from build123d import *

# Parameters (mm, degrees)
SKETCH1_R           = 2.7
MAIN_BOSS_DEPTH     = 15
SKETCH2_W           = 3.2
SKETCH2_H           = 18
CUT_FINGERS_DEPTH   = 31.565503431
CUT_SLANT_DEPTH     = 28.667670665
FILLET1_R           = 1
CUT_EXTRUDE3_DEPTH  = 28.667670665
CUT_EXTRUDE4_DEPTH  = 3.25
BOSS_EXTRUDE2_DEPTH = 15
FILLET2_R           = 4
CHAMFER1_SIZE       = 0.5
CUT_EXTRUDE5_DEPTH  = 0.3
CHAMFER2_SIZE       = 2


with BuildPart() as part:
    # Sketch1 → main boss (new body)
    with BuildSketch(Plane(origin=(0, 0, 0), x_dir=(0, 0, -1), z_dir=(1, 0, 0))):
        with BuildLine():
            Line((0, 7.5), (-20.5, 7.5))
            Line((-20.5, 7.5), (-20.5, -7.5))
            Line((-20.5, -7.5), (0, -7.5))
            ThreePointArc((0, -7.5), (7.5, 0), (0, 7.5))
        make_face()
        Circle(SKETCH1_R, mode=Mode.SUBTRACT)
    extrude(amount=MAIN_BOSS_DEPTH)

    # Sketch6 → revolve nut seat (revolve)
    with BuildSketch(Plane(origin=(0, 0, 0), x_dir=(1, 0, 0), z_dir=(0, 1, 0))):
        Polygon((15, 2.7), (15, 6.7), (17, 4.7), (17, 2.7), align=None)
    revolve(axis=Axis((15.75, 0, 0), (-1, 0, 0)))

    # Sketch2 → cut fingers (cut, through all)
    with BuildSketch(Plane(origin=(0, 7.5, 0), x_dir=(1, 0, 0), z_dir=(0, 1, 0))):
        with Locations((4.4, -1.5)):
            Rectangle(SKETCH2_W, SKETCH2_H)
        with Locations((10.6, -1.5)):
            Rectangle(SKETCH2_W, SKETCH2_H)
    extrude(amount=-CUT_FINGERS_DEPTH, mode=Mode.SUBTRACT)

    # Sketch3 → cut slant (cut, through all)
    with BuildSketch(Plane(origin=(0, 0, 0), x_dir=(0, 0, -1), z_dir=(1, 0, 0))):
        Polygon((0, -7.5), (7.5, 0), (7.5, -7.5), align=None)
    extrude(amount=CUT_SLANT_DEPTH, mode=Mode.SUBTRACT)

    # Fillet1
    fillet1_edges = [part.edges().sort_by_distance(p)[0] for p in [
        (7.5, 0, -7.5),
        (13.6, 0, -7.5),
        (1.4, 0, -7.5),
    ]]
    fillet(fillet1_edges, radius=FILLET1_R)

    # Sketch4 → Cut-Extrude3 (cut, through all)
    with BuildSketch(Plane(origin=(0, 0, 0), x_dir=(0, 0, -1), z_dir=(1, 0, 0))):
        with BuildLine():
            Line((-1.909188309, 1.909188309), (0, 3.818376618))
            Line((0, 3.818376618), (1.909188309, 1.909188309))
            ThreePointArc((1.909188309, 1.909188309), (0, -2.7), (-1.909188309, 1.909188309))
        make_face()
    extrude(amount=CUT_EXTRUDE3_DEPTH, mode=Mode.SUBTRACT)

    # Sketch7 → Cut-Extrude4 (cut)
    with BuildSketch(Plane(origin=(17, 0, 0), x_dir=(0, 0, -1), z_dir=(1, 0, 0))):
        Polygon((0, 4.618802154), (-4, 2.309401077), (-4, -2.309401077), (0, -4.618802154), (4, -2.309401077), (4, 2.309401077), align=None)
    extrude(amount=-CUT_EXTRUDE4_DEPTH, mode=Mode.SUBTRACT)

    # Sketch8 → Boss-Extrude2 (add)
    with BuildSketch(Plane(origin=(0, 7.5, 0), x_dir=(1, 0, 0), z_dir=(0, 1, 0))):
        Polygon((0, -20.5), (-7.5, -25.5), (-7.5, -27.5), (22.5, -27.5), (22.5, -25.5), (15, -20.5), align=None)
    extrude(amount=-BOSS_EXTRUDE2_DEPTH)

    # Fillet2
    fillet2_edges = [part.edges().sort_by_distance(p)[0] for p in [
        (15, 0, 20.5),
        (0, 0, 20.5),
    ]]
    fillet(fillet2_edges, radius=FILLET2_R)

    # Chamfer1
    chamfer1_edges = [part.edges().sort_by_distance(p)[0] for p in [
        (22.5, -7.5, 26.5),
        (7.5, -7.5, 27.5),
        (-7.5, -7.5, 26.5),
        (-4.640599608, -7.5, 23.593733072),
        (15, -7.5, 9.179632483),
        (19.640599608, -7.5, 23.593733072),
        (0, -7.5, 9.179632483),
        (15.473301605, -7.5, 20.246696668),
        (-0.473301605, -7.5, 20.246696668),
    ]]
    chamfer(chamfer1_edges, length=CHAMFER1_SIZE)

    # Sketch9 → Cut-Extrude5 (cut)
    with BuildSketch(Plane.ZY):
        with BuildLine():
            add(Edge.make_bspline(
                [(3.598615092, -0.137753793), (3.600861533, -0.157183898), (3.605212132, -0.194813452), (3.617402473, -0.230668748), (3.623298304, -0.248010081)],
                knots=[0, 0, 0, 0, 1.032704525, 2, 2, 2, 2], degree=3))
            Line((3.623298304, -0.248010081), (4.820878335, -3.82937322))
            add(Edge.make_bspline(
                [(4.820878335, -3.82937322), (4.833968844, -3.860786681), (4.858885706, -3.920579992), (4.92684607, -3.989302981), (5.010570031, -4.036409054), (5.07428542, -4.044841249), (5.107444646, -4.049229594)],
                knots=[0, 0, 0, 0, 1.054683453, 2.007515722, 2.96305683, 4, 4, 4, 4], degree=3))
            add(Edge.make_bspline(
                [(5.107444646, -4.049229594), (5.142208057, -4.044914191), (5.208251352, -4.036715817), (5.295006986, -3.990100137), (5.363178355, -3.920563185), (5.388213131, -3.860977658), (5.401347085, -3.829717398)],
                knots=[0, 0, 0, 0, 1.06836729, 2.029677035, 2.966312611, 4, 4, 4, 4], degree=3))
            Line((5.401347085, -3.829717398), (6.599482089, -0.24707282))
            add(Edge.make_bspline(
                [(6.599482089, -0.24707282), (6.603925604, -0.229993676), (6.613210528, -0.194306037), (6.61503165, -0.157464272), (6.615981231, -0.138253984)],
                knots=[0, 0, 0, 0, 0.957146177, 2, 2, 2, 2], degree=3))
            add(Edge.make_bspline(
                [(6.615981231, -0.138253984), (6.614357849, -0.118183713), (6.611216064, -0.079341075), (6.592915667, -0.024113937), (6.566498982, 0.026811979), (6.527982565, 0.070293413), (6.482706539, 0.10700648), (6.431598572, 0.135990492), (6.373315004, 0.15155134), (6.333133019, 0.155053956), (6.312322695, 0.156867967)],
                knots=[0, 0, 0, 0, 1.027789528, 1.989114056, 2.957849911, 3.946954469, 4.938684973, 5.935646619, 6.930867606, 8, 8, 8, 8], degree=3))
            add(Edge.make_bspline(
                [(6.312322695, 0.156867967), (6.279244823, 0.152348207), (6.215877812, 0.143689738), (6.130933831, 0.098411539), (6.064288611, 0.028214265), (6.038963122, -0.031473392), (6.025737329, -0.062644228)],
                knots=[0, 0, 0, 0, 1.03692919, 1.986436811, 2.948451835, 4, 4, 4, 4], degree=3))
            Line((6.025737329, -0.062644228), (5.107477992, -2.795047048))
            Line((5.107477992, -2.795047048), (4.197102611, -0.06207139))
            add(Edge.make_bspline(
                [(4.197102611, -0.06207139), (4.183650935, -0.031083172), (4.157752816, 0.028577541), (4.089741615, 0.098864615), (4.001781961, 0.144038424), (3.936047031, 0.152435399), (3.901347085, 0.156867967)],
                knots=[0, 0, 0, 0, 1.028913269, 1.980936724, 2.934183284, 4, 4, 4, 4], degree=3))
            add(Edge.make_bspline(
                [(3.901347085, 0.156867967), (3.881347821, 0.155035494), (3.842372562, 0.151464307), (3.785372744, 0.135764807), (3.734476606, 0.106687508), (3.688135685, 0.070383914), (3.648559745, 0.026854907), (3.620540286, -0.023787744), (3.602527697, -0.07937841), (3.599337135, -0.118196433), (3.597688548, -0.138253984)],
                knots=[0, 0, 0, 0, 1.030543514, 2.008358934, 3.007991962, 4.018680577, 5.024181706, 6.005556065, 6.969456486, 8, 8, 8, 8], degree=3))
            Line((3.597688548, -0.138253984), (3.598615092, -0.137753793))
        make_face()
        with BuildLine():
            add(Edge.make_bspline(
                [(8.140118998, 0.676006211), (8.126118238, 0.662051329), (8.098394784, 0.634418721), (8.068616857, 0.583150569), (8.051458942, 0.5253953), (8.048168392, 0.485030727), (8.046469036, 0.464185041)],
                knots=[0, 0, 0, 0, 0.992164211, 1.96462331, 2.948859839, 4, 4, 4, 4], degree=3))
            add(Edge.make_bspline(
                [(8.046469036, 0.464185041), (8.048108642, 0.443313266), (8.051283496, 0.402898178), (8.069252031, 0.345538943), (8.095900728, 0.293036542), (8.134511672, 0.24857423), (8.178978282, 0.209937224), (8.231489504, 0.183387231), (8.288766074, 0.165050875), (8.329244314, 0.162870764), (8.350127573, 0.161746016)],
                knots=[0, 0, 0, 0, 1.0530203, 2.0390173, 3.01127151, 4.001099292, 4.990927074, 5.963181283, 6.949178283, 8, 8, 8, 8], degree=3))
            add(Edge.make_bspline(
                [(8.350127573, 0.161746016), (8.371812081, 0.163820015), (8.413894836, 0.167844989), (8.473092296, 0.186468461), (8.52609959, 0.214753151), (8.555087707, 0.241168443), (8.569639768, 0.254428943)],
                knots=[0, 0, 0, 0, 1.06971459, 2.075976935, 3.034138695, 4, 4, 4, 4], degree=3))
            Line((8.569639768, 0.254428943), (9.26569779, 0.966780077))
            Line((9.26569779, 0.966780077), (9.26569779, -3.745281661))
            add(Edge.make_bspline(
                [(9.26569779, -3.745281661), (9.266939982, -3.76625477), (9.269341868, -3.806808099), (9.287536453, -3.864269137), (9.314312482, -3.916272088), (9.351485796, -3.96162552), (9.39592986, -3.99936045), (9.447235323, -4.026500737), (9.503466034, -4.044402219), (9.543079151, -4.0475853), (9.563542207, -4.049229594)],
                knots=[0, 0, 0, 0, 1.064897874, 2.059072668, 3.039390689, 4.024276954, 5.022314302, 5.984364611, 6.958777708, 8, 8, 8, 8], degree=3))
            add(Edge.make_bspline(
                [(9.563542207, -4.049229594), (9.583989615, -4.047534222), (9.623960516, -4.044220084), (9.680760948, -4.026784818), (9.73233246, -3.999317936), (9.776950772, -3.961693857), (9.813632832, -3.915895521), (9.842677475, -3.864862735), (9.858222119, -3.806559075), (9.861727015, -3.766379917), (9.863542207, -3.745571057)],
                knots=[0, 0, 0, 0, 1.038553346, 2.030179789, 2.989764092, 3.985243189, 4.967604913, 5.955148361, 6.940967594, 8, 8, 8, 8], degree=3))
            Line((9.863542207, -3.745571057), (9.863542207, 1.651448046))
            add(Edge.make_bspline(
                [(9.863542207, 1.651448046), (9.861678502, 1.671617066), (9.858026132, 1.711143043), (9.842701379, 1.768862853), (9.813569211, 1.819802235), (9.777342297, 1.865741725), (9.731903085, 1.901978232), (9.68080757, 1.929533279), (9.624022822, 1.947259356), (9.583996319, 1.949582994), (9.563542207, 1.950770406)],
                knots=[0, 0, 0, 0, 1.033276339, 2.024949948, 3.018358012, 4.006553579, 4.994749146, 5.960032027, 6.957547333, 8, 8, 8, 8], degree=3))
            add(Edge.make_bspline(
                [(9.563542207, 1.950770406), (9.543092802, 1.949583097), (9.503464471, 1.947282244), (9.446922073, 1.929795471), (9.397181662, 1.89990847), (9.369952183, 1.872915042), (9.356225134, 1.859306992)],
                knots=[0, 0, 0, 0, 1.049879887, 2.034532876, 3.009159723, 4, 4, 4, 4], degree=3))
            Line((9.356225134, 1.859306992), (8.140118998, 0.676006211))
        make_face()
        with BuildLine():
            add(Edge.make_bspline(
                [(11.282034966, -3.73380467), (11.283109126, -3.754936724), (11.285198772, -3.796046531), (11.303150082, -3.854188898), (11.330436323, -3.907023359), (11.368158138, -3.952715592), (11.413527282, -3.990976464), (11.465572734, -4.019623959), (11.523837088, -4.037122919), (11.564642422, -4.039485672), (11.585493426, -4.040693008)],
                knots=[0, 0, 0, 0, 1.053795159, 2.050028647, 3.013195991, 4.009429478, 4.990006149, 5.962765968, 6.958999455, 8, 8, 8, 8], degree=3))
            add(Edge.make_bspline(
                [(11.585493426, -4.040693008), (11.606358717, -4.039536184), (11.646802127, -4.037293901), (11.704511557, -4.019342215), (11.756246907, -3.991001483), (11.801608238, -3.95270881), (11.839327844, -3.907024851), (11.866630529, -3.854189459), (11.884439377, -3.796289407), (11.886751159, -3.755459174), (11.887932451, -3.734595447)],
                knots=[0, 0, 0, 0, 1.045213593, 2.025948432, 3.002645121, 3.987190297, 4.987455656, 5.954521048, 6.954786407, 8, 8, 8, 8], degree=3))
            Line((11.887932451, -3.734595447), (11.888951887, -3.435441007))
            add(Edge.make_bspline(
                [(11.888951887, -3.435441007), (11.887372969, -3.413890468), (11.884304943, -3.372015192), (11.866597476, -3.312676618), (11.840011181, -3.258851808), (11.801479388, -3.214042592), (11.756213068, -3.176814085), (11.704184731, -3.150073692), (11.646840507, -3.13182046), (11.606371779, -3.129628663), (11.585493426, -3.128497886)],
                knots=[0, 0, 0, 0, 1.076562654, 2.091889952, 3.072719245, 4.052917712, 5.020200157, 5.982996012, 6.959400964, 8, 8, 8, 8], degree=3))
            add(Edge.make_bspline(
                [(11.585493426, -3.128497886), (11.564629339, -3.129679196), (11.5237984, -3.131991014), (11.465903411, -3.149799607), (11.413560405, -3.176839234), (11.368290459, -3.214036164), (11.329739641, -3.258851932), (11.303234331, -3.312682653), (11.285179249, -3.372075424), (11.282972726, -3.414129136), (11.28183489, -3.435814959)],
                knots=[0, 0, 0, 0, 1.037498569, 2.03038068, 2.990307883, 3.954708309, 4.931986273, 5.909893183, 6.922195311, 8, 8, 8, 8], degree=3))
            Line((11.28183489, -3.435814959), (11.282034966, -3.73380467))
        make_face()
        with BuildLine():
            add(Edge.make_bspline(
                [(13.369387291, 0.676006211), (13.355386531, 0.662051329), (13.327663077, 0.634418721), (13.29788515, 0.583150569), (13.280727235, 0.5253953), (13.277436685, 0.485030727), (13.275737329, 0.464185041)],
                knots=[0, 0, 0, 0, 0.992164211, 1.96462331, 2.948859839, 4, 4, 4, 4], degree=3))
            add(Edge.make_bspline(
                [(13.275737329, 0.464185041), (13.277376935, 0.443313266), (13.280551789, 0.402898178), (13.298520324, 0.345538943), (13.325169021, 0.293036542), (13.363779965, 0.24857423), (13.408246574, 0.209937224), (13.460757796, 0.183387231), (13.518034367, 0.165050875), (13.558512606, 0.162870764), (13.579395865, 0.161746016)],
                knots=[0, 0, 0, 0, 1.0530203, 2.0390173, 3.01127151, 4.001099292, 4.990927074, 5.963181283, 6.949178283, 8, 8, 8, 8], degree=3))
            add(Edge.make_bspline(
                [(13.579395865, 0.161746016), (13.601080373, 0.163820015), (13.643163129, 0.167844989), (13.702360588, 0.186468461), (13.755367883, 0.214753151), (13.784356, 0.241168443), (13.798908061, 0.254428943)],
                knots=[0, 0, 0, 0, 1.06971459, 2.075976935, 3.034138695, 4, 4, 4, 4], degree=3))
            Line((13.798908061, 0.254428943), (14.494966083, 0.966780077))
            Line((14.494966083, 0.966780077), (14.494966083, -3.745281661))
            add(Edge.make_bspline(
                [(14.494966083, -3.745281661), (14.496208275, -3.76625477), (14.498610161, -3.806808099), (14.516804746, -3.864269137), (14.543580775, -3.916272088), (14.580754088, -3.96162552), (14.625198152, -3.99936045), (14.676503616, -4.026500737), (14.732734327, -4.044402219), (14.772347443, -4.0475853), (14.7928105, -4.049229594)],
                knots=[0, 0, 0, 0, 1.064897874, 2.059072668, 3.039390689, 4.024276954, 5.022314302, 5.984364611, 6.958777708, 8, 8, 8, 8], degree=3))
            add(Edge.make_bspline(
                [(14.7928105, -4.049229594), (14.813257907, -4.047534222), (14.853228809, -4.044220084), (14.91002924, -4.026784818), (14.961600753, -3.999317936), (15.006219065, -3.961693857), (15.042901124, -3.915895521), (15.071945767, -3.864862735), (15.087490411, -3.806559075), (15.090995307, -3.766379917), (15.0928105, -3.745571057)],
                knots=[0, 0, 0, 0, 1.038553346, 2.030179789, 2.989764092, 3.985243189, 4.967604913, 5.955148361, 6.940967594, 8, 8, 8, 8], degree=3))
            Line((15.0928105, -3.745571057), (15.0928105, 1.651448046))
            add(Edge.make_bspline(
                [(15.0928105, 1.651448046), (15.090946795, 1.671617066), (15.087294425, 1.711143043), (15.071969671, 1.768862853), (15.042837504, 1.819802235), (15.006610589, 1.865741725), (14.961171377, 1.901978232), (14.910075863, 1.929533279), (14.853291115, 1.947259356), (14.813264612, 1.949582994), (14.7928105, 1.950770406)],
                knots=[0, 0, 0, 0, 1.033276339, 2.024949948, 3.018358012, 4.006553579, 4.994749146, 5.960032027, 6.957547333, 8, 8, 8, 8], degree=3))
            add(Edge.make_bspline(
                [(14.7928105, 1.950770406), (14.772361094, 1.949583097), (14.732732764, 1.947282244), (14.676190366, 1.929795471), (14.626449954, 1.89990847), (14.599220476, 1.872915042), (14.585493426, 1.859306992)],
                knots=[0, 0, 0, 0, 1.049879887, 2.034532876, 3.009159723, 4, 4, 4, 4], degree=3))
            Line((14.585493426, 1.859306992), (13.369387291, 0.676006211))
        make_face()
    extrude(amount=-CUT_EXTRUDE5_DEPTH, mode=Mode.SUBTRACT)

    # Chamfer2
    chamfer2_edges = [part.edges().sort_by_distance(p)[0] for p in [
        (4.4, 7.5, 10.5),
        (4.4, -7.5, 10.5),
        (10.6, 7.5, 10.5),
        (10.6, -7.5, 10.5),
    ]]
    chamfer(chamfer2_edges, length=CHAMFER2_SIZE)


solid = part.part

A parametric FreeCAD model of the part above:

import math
import FreeCAD as App
import Part
import Sketcher
from FreeCAD import Vector
Q = App.Units.Quantity


def edges_at(feature, points):
    """Names of the edges that pass closest to the given points."""
    edges = feature.Shape.Edges
    near = lambda p: min(range(len(edges)), key=lambda i: edges[i].distToShape(Part.Vertex(*p))[0])
    return sorted({f"Edge{near(p) + 1}" for p in points})


def add_polygon(sketch, points):
    """Adds a closed chain of lines whose ends are joined by coincident constraints."""
    first, n = sketch.GeometryCount, len(points)
    for a, b in zip(points, points[1:] + points[:1]):
        sketch.addGeometry(Part.LineSegment(App.Vector(*a, 0), App.Vector(*b, 0)), False)
    for i in range(n):
        sketch.addConstraint(Sketcher.Constraint("Coincident", first + i, 2, first + (i + 1) % n, 1))

doc = App.newDocument("Part")
body = doc.addObject("PartDesign::Body", "Body")

sketch1 = doc.addObject("Sketcher::SketchObject", "Sketch")
body.addObject(sketch1)
sketch1.AttachmentSupport = (doc.YZ_Plane, [""])
sketch1.MapMode = "FlatFace"
sketch1.addGeometry([
    Part.LineSegment(Vector(7.5, 0, 0), Vector(7.5, 20.5, 0)),
    Part.LineSegment(Vector(7.5, 20.5, 0), Vector(-7.5, 20.5, 0)),
    Part.LineSegment(Vector(-7.5, 20.5, 0), Vector(-7.5, 0, 0)),
    Part.ArcOfCircle(Part.Circle(Vector(0, 0, 0), Vector(0, 0, 1), 7.5), math.radians(180), math.radians(360)),
    Part.Circle(Vector(0, 0, 0), Vector(0, 0, 1), 2.7),
], False)
sketch1.addConstraint([
    Sketcher.Constraint("Coincident", 0, 2, 1, 1),
    Sketcher.Constraint("Coincident", 1, 2, 2, 1),
    Sketcher.Constraint("Tangent", 2, 2, 3, 1),
    Sketcher.Constraint("Tangent", 3, 2, 0, 1),
    Sketcher.Constraint("Vertical", 0),
    Sketcher.Constraint("Horizontal", 1),
    Sketcher.Constraint("Vertical", 2),
    Sketcher.Constraint("Coincident", 3, 3, -1, 1),
    Sketcher.Constraint("Coincident", 4, 3, -1, 1),
    Sketcher.Constraint("Diameter", 4, Q("5.4 mm")),
    Sketcher.Constraint("Radius", 3, Q("7.5 mm")),
    Sketcher.Constraint("DistanceY", 0, 1, 0, 2, Q("20.5 mm")),
])
pad1 = doc.addObject("PartDesign::Pad", "Pad")
body.addObject(pad1)
pad1.Profile = sketch1
pad1.Length = 15

sketch2 = doc.addObject("Sketcher::SketchObject", "Sketch001")
body.addObject(sketch2)
sketch2.AttachmentSupport = (doc.XZ_Plane, [""])
sketch2.MapMode = "FlatFace"
add_polygon(sketch2, [(15, -6.7), (15, -2.7), (17, -2.7), (17, -4.7)])
sketch2.addConstraint([
    Sketcher.Constraint("Vertical", 0),
    Sketcher.Constraint("Horizontal", 1),
    Sketcher.Constraint("Vertical", 2),
    Sketcher.Constraint("Equal", 1, 2),
    Sketcher.Constraint("DistanceX", 1, 1, 1, 2, Q("2 mm")),
    Sketcher.Constraint("DistanceY", 0, 1, 0, 2, Q("4 mm")),
    Sketcher.Constraint("DistanceX", -1, 1, 0, 2, Q("15 mm")),
    Sketcher.Constraint("DistanceY", 0, 2, -1, 1, Q("2.7 mm")),
])
revolution = doc.addObject("PartDesign::Revolution", "Revolution")
body.addObject(revolution)
revolution.Profile = sketch2
revolution.ReferenceAxis = (sketch2, ["H_Axis"])
revolution.Angle = 360

sketch3 = doc.addObject("Sketcher::SketchObject", "Sketch002")
body.addObject(sketch3)
sketch3.AttachmentSupport = (doc.XZ_Plane, [""])
sketch3.MapMode = "FlatFace"
sketch3.AttachmentOffset = App.Placement(Vector(0, 0, -7.5), App.Rotation())
add_polygon(sketch3, [(2.8, -7.5), (2.8, 10.5), (6, 10.5), (6, -7.5)])
add_polygon(sketch3, [(9, -7.5), (9, 10.5), (12.2, 10.5), (12.2, -7.5)])
sketch3.addConstraint([
    Sketcher.Constraint("Vertical", 0),
    Sketcher.Constraint("Horizontal", 1),
    Sketcher.Constraint("Vertical", 2),
    Sketcher.Constraint("Horizontal", 3),
    Sketcher.Constraint("Vertical", 4),
    Sketcher.Constraint("Horizontal", 5),
    Sketcher.Constraint("Vertical", 6),
    Sketcher.Constraint("Horizontal", 7),
    Sketcher.Constraint("Horizontal", 1, 2, 4, 2),
    Sketcher.Constraint("Horizontal", 3, 2, 6, 2),
    Sketcher.Constraint("Equal", 3, 5),
    Sketcher.Constraint("DistanceY", 0, 1, 0, 2, Q("18 mm")),
    Sketcher.Constraint("DistanceX", 1, 1, 1, 2, Q("3.2 mm")),
    Sketcher.Constraint("DistanceX", -1, 1, 1, 2, Q("6 mm")),
    Sketcher.Constraint("DistanceX", -1, 1, 4, 2, Q("9 mm")),
    Sketcher.Constraint("DistanceY", -1, 1, 0, 2, Q("10.5 mm")),
])
pocket1 = doc.addObject("PartDesign::Pocket", "Pocket")
body.addObject(pocket1)
pocket1.Profile = sketch3
pocket1.Type = "ThroughAll"
pocket1.Reversed = True

sketch4 = doc.addObject("Sketcher::SketchObject", "Sketch003")
body.addObject(sketch4)
sketch4.AttachmentSupport = (doc.YZ_Plane, [""])
sketch4.MapMode = "FlatFace"
add_polygon(sketch4, [(0, -8), (-8, 0), (-8, -8)])
sketch4.addConstraint([
    Sketcher.Constraint("Vertical", 1),
    Sketcher.Constraint("Horizontal", 2),
    Sketcher.Constraint("PointOnObject", 0, 2, -1),
    Sketcher.Constraint("PointOnObject", 2, 2, -2),
    Sketcher.Constraint("Equal", 2, 1),
    Sketcher.Constraint("DistanceX", 2, 1, 2, 2, Q("7.5 mm")),
])
pocket2 = doc.addObject("PartDesign::Pocket", "Pocket001")
body.addObject(pocket2)
pocket2.Profile = sketch4
pocket2.Type = "ThroughAll"
pocket2.Reversed = True
doc.recompute()

fillet = doc.addObject("PartDesign::Fillet", "Fillet")
body.addObject(fillet)
fillet.Base = (pocket2, edges_at(pocket2, [(7.5, 0, -7.5), (13.6, 0, -7.5), (1.4, 0, -7.5)]))
fillet.Radius = 1

sketch5 = doc.addObject("Sketcher::SketchObject", "Sketch004")
body.addObject(sketch5)
sketch5.AttachmentSupport = (doc.YZ_Plane, [""])
sketch5.MapMode = "FlatFace"
sketch5.addGeometry([
    Part.LineSegment(Vector(3.8, 0, 0), Vector(1.9, 1.9, 0)),
    Part.ArcOfCircle(Part.Circle(Vector(0, 0, 0), Vector(0, 0, 1), 2.7), math.radians(45), math.radians(315)),
    Part.LineSegment(Vector(1.9, -1.9, 0), Vector(3.8, 0, 0)),
], False)
sketch5.addConstraint([
    Sketcher.Constraint("Tangent", 0, 2, 1, 1),
    Sketcher.Constraint("Tangent", 1, 2, 2, 1),
    Sketcher.Constraint("Coincident", 2, 2, 0, 1),
    Sketcher.Constraint("Coincident", 1, 3, -1, 1),
    Sketcher.Constraint("PointOnObject", 2, 2, -1),
    Sketcher.Constraint("Perpendicular", 0, 2),
    Sketcher.Constraint("Radius", 1, Q("2.7 mm")),
])
pocket3 = doc.addObject("PartDesign::Pocket", "Pocket002")
body.addObject(pocket3)
pocket3.Profile = sketch5
pocket3.Type = "ThroughAll"
pocket3.Reversed = True

sketch6 = doc.addObject("Sketcher::SketchObject", "Sketch005")
body.addObject(sketch6)
sketch6.AttachmentSupport = (doc.YZ_Plane, [""])
sketch6.MapMode = "FlatFace"
sketch6.AttachmentOffset = App.Placement(Vector(0, 0, 17), App.Rotation())
add_polygon(sketch6, [(4.6, 0), (2.3, 4), (-2.3, 4), (-4.6, 0), (-2.3, -4), (2.3, -4)])
sketch6.addConstraint([
    Sketcher.Constraint("Horizontal", 1),
    Sketcher.Constraint("Horizontal", 4),
    Sketcher.Constraint("Symmetric", 0, 2, 3, 2, -1, 1),
    Sketcher.Constraint("Symmetric", 2, 2, 5, 2, -1, 1),
    Sketcher.Constraint("PointOnObject", 2, 2, -1),
    Sketcher.Constraint("Parallel", 2, 5),
    Sketcher.Constraint("Vertical", 1, 2, 3, 2),
    Sketcher.Constraint("Angle", 0, Q("120 deg")),
    Sketcher.Constraint("DistanceY", -1, 1, 0, 2, Q("4 mm")),
    Sketcher.Constraint("DistanceX", -1, 1, 0, 2, Q("2.309401 mm")),
])
pocket4 = doc.addObject("PartDesign::Pocket", "Pocket003")
body.addObject(pocket4)
pocket4.Profile = sketch6
pocket4.Length = 3.25

sketch7 = doc.addObject("Sketcher::SketchObject", "Sketch006")
body.addObject(sketch7)
sketch7.AttachmentSupport = (doc.XZ_Plane, [""])
sketch7.MapMode = "FlatFace"
sketch7.AttachmentOffset = App.Placement(Vector(0, 0, -7.5), App.Rotation())
add_polygon(sketch7, [(0, 20.5), (-7.5, 25.5), (-7.5, 27.5), (22.5, 27.5), (22.5, 25.5), (15, 20.5)])
sketch7.addConstraint([
    Sketcher.Constraint("Vertical", 1),
    Sketcher.Constraint("Horizontal", 2),
    Sketcher.Constraint("Vertical", 3),
    Sketcher.Constraint("Horizontal", 5),
    Sketcher.Constraint("PointOnObject", 5, 2, -2),
    Sketcher.Constraint("Horizontal", 0, 2, 3, 2),
    Sketcher.Constraint("Equal", 0, 4),
    Sketcher.Constraint("DistanceX", 2, 1, 2, 2, Q("30 mm")),
    Sketcher.Constraint("DistanceX", 5, 2, 5, 1, Q("15 mm")),
    Sketcher.Constraint("DistanceY", 1, 1, 1, 2, Q("2 mm")),
    Sketcher.Constraint("DistanceY", 4, 2, 3, 2, Q("5 mm")),
    Sketcher.Constraint("DistanceY", -1, 1, 0, 2, Q("25.5 mm")),
])
pad2 = doc.addObject("PartDesign::Pad", "Pad001")
body.addObject(pad2)
pad2.Profile = sketch7
pad2.Length = 15
doc.recompute()

fillet2 = doc.addObject("PartDesign::Fillet", "Fillet001")
body.addObject(fillet2)
fillet2.Base = (pad2, edges_at(pad2, [(15, 0, 20.5), (0, 0, 20.5)]))
fillet2.Radius = 4
doc.recompute()

chamfer = doc.addObject("PartDesign::Chamfer", "Chamfer")
body.addObject(chamfer)
chamfer.Base = (fillet2, edges_at(fillet2, [
    (22.5, -7.5, 26.5),
    (7.5, -7.5, 27.5),
    (-7.5, -7.5, 26.5),
    (-4.641, -7.5, 23.594),
    (15, -7.5, 9.18),
    (19.641, -7.5, 23.594),
    (0, -7.5, 9.18),
    (15.473, -7.5, 20.247),
    (-0.473, -7.5, 20.247),
]))
chamfer.Size = 0.5

sketch8 = doc.addObject("Sketcher::SketchObject", "Sketch007")
body.addObject(sketch8)
sketch8.AttachmentSupport = (doc.YZ_Plane, [""])
sketch8.MapMode = "FlatFace"
sketch8.addGeometry([
    Part.BSplineCurve([Vector(-0.137754, 3.598615, 0), Vector(-0.157184, 3.600862, 0), Vector(-0.194813, 3.605212, 0), Vector(-0.230669, 3.617402, 0), Vector(-0.24801, 3.623298, 0)], [4, 1, 4], [0, 1.032704525, 2], False, 3, [1, 1, 1, 1, 1], False),
    Part.LineSegment(Vector(-0.24801, 3.623298, 0), Vector(-3.829373, 4.820878, 0)),
    Part.BSplineCurve([Vector(-3.829373, 4.820878, 0), Vector(-3.860787, 4.833969, 0), Vector(-3.92058, 4.858886, 0), Vector(-3.989303, 4.926846, 0), Vector(-4.036409, 5.01057, 0), Vector(-4.044841, 5.074285, 0), Vector(-4.04923, 5.107445, 0)], [4, 1, 1, 1, 4], [0, 1.054683453, 2.007515722, 2.96305683, 4], False, 3, [1, 1, 1, 1, 1, 1, 1], False),
    Part.BSplineCurve([Vector(-4.04923, 5.107445, 0), Vector(-4.044914, 5.142208, 0), Vector(-4.036716, 5.208251, 0), Vector(-3.9901, 5.295007, 0), Vector(-3.920563, 5.363178, 0), Vector(-3.860978, 5.388213, 0), Vector(-3.829717, 5.401347, 0)], [4, 1, 1, 1, 4], [0, 1.06836729, 2.029677035, 2.966312611, 4], False, 3, [1, 1, 1, 1, 1, 1, 1], False),
    Part.LineSegment(Vector(-3.829717, 5.401347, 0), Vector(-0.247073, 6.599482, 0)),
    Part.BSplineCurve([Vector(-0.247073, 6.599482, 0), Vector(-0.229994, 6.603926, 0), Vector(-0.194306, 6.613211, 0), Vector(-0.157464, 6.615032, 0), Vector(-0.138254, 6.615981, 0)], [4, 1, 4], [0, 0.957146177, 2], False, 3, [1, 1, 1, 1, 1], False),
    Part.BSplineCurve([Vector(-0.138254, 6.615981, 0), Vector(-0.118184, 6.614358, 0), Vector(-0.079341, 6.611216, 0), Vector(-0.024114, 6.592916, 0), Vector(0.026812, 6.566499, 0), Vector(0.070293, 6.527983, 0), Vector(0.107006, 6.482707, 0), Vector(0.13599, 6.431599, 0), Vector(0.151551, 6.373315, 0), Vector(0.155054, 6.333133, 0), Vector(0.156868, 6.312323, 0)], [4, 1, 1, 1, 1, 1, 1, 1, 4], [0, 1.027789528, 1.989114056, 2.957849911, 3.946954469, 4.938684973, 5.935646619, 6.930867606, 8], False, 3, [1, 1, 1, 1, 1, 1, 1, 1, 1, 1, 1], False),
    Part.BSplineCurve([Vector(0.156868, 6.312323, 0), Vector(0.152348, 6.279245, 0), Vector(0.14369, 6.215878, 0), Vector(0.098412, 6.130934, 0), Vector(0.028214, 6.064289, 0), Vector(-0.031473, 6.038963, 0), Vector(-0.062644, 6.025737, 0)], [4, 1, 1, 1, 4], [0, 1.03692919, 1.986436811, 2.948451835, 4], False, 3, [1, 1, 1, 1, 1, 1, 1], False),
    Part.LineSegment(Vector(-0.062644, 6.025737, 0), Vector(-2.795047, 5.107478, 0)),
    Part.LineSegment(Vector(-2.795047, 5.107478, 0), Vector(-0.062071, 4.197103, 0)),
    Part.BSplineCurve([Vector(-0.062071, 4.197103, 0), Vector(-0.031083, 4.183651, 0), Vector(0.028578, 4.157753, 0), Vector(0.098865, 4.089742, 0), Vector(0.144038, 4.001782, 0), Vector(0.152435, 3.936047, 0), Vector(0.156868, 3.901347, 0)], [4, 1, 1, 1, 4], [0, 1.028913269, 1.980936724, 2.934183284, 4], False, 3, [1, 1, 1, 1, 1, 1, 1], False),
    Part.BSplineCurve([Vector(0.156868, 3.901347, 0), Vector(0.155035, 3.881348, 0), Vector(0.151464, 3.842373, 0), Vector(0.135765, 3.785373, 0), Vector(0.106688, 3.734477, 0), Vector(0.070384, 3.688136, 0), Vector(0.026855, 3.64856, 0), Vector(-0.023788, 3.62054, 0), Vector(-0.079378, 3.602528, 0), Vector(-0.118196, 3.599337, 0), Vector(-0.138254, 3.597689, 0)], [4, 1, 1, 1, 1, 1, 1, 1, 4], [0, 1.030543514, 2.008358934, 3.007991962, 4.018680577, 5.024181706, 6.005556065, 6.969456486, 8], False, 3, [1, 1, 1, 1, 1, 1, 1, 1, 1, 1, 1], False),
    Part.LineSegment(Vector(-0.138254, 3.597689, 0), Vector(-0.137754, 3.598615, 0)),
    Part.BSplineCurve([Vector(0.676006, 8.140119, 0), Vector(0.662051, 8.126118, 0), Vector(0.634419, 8.098395, 0), Vector(0.583151, 8.068617, 0), Vector(0.525395, 8.051459, 0), Vector(0.485031, 8.048168, 0), Vector(0.464185, 8.046469, 0)], [4, 1, 1, 1, 4], [0, 0.992164211, 1.96462331, 2.948859839, 4], False, 3, [1, 1, 1, 1, 1, 1, 1], False),
    Part.BSplineCurve([Vector(0.464185, 8.046469, 0), Vector(0.443313, 8.048109, 0), Vector(0.402898, 8.051283, 0), Vector(0.345539, 8.069252, 0), Vector(0.293037, 8.095901, 0), Vector(0.248574, 8.134512, 0), Vector(0.209937, 8.178978, 0), Vector(0.183387, 8.23149, 0), Vector(0.165051, 8.288766, 0), Vector(0.162871, 8.329244, 0), Vector(0.161746, 8.350128, 0)], [4, 1, 1, 1, 1, 1, 1, 1, 4], [0, 1.0530203, 2.0390173, 3.01127151, 4.001099292, 4.990927074, 5.963181283, 6.949178283, 8], False, 3, [1, 1, 1, 1, 1, 1, 1, 1, 1, 1, 1], False),
    Part.BSplineCurve([Vector(0.161746, 8.350128, 0), Vector(0.16382, 8.371812, 0), Vector(0.167845, 8.413895, 0), Vector(0.186468, 8.473092, 0), Vector(0.214753, 8.5261, 0), Vector(0.241168, 8.555088, 0), Vector(0.254429, 8.56964, 0)], [4, 1, 1, 1, 4], [0, 1.06971459, 2.075976935, 3.034138695, 4], False, 3, [1, 1, 1, 1, 1, 1, 1], False),
    Part.LineSegment(Vector(0.254429, 8.56964, 0), Vector(0.96678, 9.265698, 0)),
    Part.LineSegment(Vector(0.96678, 9.265698, 0), Vector(-3.745282, 9.265698, 0)),
    Part.BSplineCurve([Vector(-3.745282, 9.265698, 0), Vector(-3.766255, 9.26694, 0), Vector(-3.806808, 9.269342, 0), Vector(-3.864269, 9.287536, 0), Vector(-3.916272, 9.314312, 0), Vector(-3.961626, 9.351486, 0), Vector(-3.99936, 9.39593, 0), Vector(-4.026501, 9.447235, 0), Vector(-4.044402, 9.503466, 0), Vector(-4.047585, 9.543079, 0), Vector(-4.04923, 9.563542, 0)], [4, 1, 1, 1, 1, 1, 1, 1, 4], [0, 1.064897874, 2.059072668, 3.039390689, 4.024276954, 5.022314302, 5.984364611, 6.958777708, 8], False, 3, [1, 1, 1, 1, 1, 1, 1, 1, 1, 1, 1], False),
    Part.BSplineCurve([Vector(-4.04923, 9.563542, 0), Vector(-4.047534, 9.58399, 0), Vector(-4.04422, 9.623961, 0), Vector(-4.026785, 9.680761, 0), Vector(-3.999318, 9.732332, 0), Vector(-3.961694, 9.776951, 0), Vector(-3.915896, 9.813633, 0), Vector(-3.864863, 9.842677, 0), Vector(-3.806559, 9.858222, 0), Vector(-3.76638, 9.861727, 0), Vector(-3.745571, 9.863542, 0)], [4, 1, 1, 1, 1, 1, 1, 1, 4], [0, 1.038553346, 2.030179789, 2.989764092, 3.985243189, 4.967604913, 5.955148361, 6.940967594, 8], False, 3, [1, 1, 1, 1, 1, 1, 1, 1, 1, 1, 1], False),
    Part.LineSegment(Vector(-3.745571, 9.863542, 0), Vector(1.651448, 9.863542, 0)),
    Part.BSplineCurve([Vector(1.651448, 9.863542, 0), Vector(1.671617, 9.861679, 0), Vector(1.711143, 9.858026, 0), Vector(1.768863, 9.842701, 0), Vector(1.819802, 9.813569, 0), Vector(1.865742, 9.777342, 0), Vector(1.901978, 9.731903, 0), Vector(1.929533, 9.680808, 0), Vector(1.947259, 9.624023, 0), Vector(1.949583, 9.583996, 0), Vector(1.95077, 9.563542, 0)], [4, 1, 1, 1, 1, 1, 1, 1, 4], [0, 1.033276339, 2.024949948, 3.018358012, 4.006553579, 4.994749146, 5.960032027, 6.957547333, 8], False, 3, [1, 1, 1, 1, 1, 1, 1, 1, 1, 1, 1], False),
    Part.BSplineCurve([Vector(1.95077, 9.563542, 0), Vector(1.949583, 9.543093, 0), Vector(1.947282, 9.503464, 0), Vector(1.929795, 9.446922, 0), Vector(1.899908, 9.397182, 0), Vector(1.872915, 9.369952, 0), Vector(1.859307, 9.356225, 0)], [4, 1, 1, 1, 4], [0, 1.049879887, 2.034532876, 3.009159723, 4], False, 3, [1, 1, 1, 1, 1, 1, 1], False),
    Part.LineSegment(Vector(1.859307, 9.356225, 0), Vector(0.676006, 8.140119, 0)),
    Part.BSplineCurve([Vector(-3.733805, 11.282035, 0), Vector(-3.754937, 11.283109, 0), Vector(-3.796047, 11.285199, 0), Vector(-3.854189, 11.30315, 0), Vector(-3.907023, 11.330436, 0), Vector(-3.952716, 11.368158, 0), Vector(-3.990976, 11.413527, 0), Vector(-4.019624, 11.465573, 0), Vector(-4.037123, 11.523837, 0), Vector(-4.039486, 11.564642, 0), Vector(-4.040693, 11.585493, 0)], [4, 1, 1, 1, 1, 1, 1, 1, 4], [0, 1.053795159, 2.050028647, 3.013195991, 4.009429478, 4.990006149, 5.962765968, 6.958999455, 8], False, 3, [1, 1, 1, 1, 1, 1, 1, 1, 1, 1, 1], False),
    Part.BSplineCurve([Vector(-4.040693, 11.585493, 0), Vector(-4.039536, 11.606359, 0), Vector(-4.037294, 11.646802, 0), Vector(-4.019342, 11.704512, 0), Vector(-3.991001, 11.756247, 0), Vector(-3.952709, 11.801608, 0), Vector(-3.907025, 11.839328, 0), Vector(-3.854189, 11.866631, 0), Vector(-3.796289, 11.884439, 0), Vector(-3.755459, 11.886751, 0), Vector(-3.734595, 11.887932, 0)], [4, 1, 1, 1, 1, 1, 1, 1, 4], [0, 1.045213593, 2.025948432, 3.002645121, 3.987190297, 4.987455656, 5.954521048, 6.954786407, 8], False, 3, [1, 1, 1, 1, 1, 1, 1, 1, 1, 1, 1], False),
    Part.LineSegment(Vector(-3.734595, 11.887932, 0), Vector(-3.435441, 11.888952, 0)),
    Part.BSplineCurve([Vector(-3.435441, 11.888952, 0), Vector(-3.41389, 11.887373, 0), Vector(-3.372015, 11.884305, 0), Vector(-3.312677, 11.866597, 0), Vector(-3.258852, 11.840011, 0), Vector(-3.214043, 11.801479, 0), Vector(-3.176814, 11.756213, 0), Vector(-3.150074, 11.704185, 0), Vector(-3.13182, 11.646841, 0), Vector(-3.129629, 11.606372, 0), Vector(-3.128498, 11.585493, 0)], [4, 1, 1, 1, 1, 1, 1, 1, 4], [0, 1.076562654, 2.091889952, 3.072719245, 4.052917712, 5.020200157, 5.982996012, 6.959400964, 8], False, 3, [1, 1, 1, 1, 1, 1, 1, 1, 1, 1, 1], False),
    Part.BSplineCurve([Vector(-3.128498, 11.585493, 0), Vector(-3.129679, 11.564629, 0), Vector(-3.131991, 11.523798, 0), Vector(-3.1498, 11.465903, 0), Vector(-3.176839, 11.41356, 0), Vector(-3.214036, 11.36829, 0), Vector(-3.258852, 11.32974, 0), Vector(-3.312683, 11.303234, 0), Vector(-3.372075, 11.285179, 0), Vector(-3.414129, 11.282973, 0), Vector(-3.435815, 11.281835, 0)], [4, 1, 1, 1, 1, 1, 1, 1, 4], [0, 1.037498569, 2.03038068, 2.990307883, 3.954708309, 4.931986273, 5.909893183, 6.922195311, 8], False, 3, [1, 1, 1, 1, 1, 1, 1, 1, 1, 1, 1], False),
    Part.LineSegment(Vector(-3.435815, 11.281835, 0), Vector(-3.733805, 11.282035, 0)),
    Part.BSplineCurve([Vector(0.676006, 13.369387, 0), Vector(0.662051, 13.355387, 0), Vector(0.634419, 13.327663, 0), Vector(0.583151, 13.297885, 0), Vector(0.525395, 13.280727, 0), Vector(0.485031, 13.277437, 0), Vector(0.464185, 13.275737, 0)], [4, 1, 1, 1, 4], [0, 0.992164211, 1.96462331, 2.948859839, 4], False, 3, [1, 1, 1, 1, 1, 1, 1], False),
    Part.BSplineCurve([Vector(0.464185, 13.275737, 0), Vector(0.443313, 13.277377, 0), Vector(0.402898, 13.280552, 0), Vector(0.345539, 13.29852, 0), Vector(0.293037, 13.325169, 0), Vector(0.248574, 13.36378, 0), Vector(0.209937, 13.408247, 0), Vector(0.183387, 13.460758, 0), Vector(0.165051, 13.518034, 0), Vector(0.162871, 13.558513, 0), Vector(0.161746, 13.579396, 0)], [4, 1, 1, 1, 1, 1, 1, 1, 4], [0, 1.0530203, 2.0390173, 3.01127151, 4.001099292, 4.990927074, 5.963181283, 6.949178283, 8], False, 3, [1, 1, 1, 1, 1, 1, 1, 1, 1, 1, 1], False),
    Part.BSplineCurve([Vector(0.161746, 13.579396, 0), Vector(0.16382, 13.60108, 0), Vector(0.167845, 13.643163, 0), Vector(0.186468, 13.702361, 0), Vector(0.214753, 13.755368, 0), Vector(0.241168, 13.784356, 0), Vector(0.254429, 13.798908, 0)], [4, 1, 1, 1, 4], [0, 1.06971459, 2.075976935, 3.034138695, 4], False, 3, [1, 1, 1, 1, 1, 1, 1], False),
    Part.LineSegment(Vector(0.254429, 13.798908, 0), Vector(0.96678, 14.494966, 0)),
    Part.LineSegment(Vector(0.96678, 14.494966, 0), Vector(-3.745282, 14.494966, 0)),
    Part.BSplineCurve([Vector(-3.745282, 14.494966, 0), Vector(-3.766255, 14.496208, 0), Vector(-3.806808, 14.49861, 0), Vector(-3.864269, 14.516805, 0), Vector(-3.916272, 14.543581, 0), Vector(-3.961626, 14.580754, 0), Vector(-3.99936, 14.625198, 0), Vector(-4.026501, 14.676504, 0), Vector(-4.044402, 14.732734, 0), Vector(-4.047585, 14.772347, 0), Vector(-4.04923, 14.79281, 0)], [4, 1, 1, 1, 1, 1, 1, 1, 4], [0, 1.064897874, 2.059072668, 3.039390689, 4.024276954, 5.022314302, 5.984364611, 6.958777708, 8], False, 3, [1, 1, 1, 1, 1, 1, 1, 1, 1, 1, 1], False),
    Part.BSplineCurve([Vector(-4.04923, 14.79281, 0), Vector(-4.047534, 14.813258, 0), Vector(-4.04422, 14.853229, 0), Vector(-4.026785, 14.910029, 0), Vector(-3.999318, 14.961601, 0), Vector(-3.961694, 15.006219, 0), Vector(-3.915896, 15.042901, 0), Vector(-3.864863, 15.071946, 0), Vector(-3.806559, 15.08749, 0), Vector(-3.76638, 15.090995, 0), Vector(-3.745571, 15.092811, 0)], [4, 1, 1, 1, 1, 1, 1, 1, 4], [0, 1.038553346, 2.030179789, 2.989764092, 3.985243189, 4.967604913, 5.955148361, 6.940967594, 8], False, 3, [1, 1, 1, 1, 1, 1, 1, 1, 1, 1, 1], False),
    Part.LineSegment(Vector(-3.745571, 15.092811, 0), Vector(1.651448, 15.092811, 0)),
    Part.BSplineCurve([Vector(1.651448, 15.092811, 0), Vector(1.671617, 15.090947, 0), Vector(1.711143, 15.087294, 0), Vector(1.768863, 15.07197, 0), Vector(1.819802, 15.042838, 0), Vector(1.865742, 15.006611, 0), Vector(1.901978, 14.961171, 0), Vector(1.929533, 14.910076, 0), Vector(1.947259, 14.853291, 0), Vector(1.949583, 14.813265, 0), Vector(1.95077, 14.79281, 0)], [4, 1, 1, 1, 1, 1, 1, 1, 4], [0, 1.033276339, 2.024949948, 3.018358012, 4.006553579, 4.994749146, 5.960032027, 6.957547333, 8], False, 3, [1, 1, 1, 1, 1, 1, 1, 1, 1, 1, 1], False),
    Part.BSplineCurve([Vector(1.95077, 14.79281, 0), Vector(1.949583, 14.772361, 0), Vector(1.947282, 14.732733, 0), Vector(1.929795, 14.67619, 0), Vector(1.899908, 14.62645, 0), Vector(1.872915, 14.59922, 0), Vector(1.859307, 14.585493, 0)], [4, 1, 1, 1, 4], [0, 1.049879887, 2.034532876, 3.009159723, 4], False, 3, [1, 1, 1, 1, 1, 1, 1], False),
    Part.LineSegment(Vector(1.859307, 14.585493, 0), Vector(0.676006, 13.369387, 0)),
], False)
sketch8.addConstraint([
    Sketcher.Constraint("Block", 0),
    Sketcher.Constraint("Block", 2),
    Sketcher.Constraint("Block", 3),
    Sketcher.Constraint("Block", 5),
    Sketcher.Constraint("Block", 6),
    Sketcher.Constraint("Block", 7),
    Sketcher.Constraint("Block", 10),
    Sketcher.Constraint("Block", 11),
    Sketcher.Constraint("Block", 13),
    Sketcher.Constraint("Block", 14),
    Sketcher.Constraint("Block", 15),
    Sketcher.Constraint("Block", 18),
    Sketcher.Constraint("Block", 19),
    Sketcher.Constraint("Block", 21),
    Sketcher.Constraint("Block", 22),
    Sketcher.Constraint("Block", 24),
    Sketcher.Constraint("Block", 25),
    Sketcher.Constraint("Block", 27),
    Sketcher.Constraint("Block", 28),
    Sketcher.Constraint("Block", 30),
    Sketcher.Constraint("Block", 31),
    Sketcher.Constraint("Block", 32),
    Sketcher.Constraint("Block", 35),
    Sketcher.Constraint("Block", 36),
    Sketcher.Constraint("Block", 38),
    Sketcher.Constraint("Block", 39),
    Sketcher.Constraint("Coincident", 0, 2, 1, 1),
    Sketcher.Constraint("Coincident", 1, 2, 2, 1),
    Sketcher.Constraint("Coincident", 3, 2, 4, 1),
    Sketcher.Constraint("Coincident", 4, 2, 5, 1),
    Sketcher.Constraint("Coincident", 7, 2, 8, 1),
    Sketcher.Constraint("Coincident", 8, 2, 9, 1),
    Sketcher.Constraint("Coincident", 9, 2, 10, 1),
    Sketcher.Constraint("Coincident", 11, 2, 12, 1),
    Sketcher.Constraint("Coincident", 12, 2, 0, 1),
    Sketcher.Constraint("Coincident", 15, 2, 16, 1),
    Sketcher.Constraint("Coincident", 16, 2, 17, 1),
    Sketcher.Constraint("Coincident", 17, 2, 18, 1),
    Sketcher.Constraint("Coincident", 19, 2, 20, 1),
    Sketcher.Constraint("Coincident", 20, 2, 21, 1),
    Sketcher.Constraint("Coincident", 22, 2, 23, 1),
    Sketcher.Constraint("Coincident", 23, 2, 13, 1),
    Sketcher.Constraint("Coincident", 25, 2, 26, 1),
    Sketcher.Constraint("Coincident", 26, 2, 27, 1),
    Sketcher.Constraint("Coincident", 28, 2, 29, 1),
    Sketcher.Constraint("Coincident", 29, 2, 24, 1),
    Sketcher.Constraint("Coincident", 32, 2, 33, 1),
    Sketcher.Constraint("Coincident", 33, 2, 34, 1),
    Sketcher.Constraint("Coincident", 34, 2, 35, 1),
    Sketcher.Constraint("Coincident", 36, 2, 37, 1),
    Sketcher.Constraint("Coincident", 37, 2, 38, 1),
    Sketcher.Constraint("Coincident", 39, 2, 40, 1),
    Sketcher.Constraint("Coincident", 40, 2, 30, 1),
    Sketcher.Constraint("Horizontal", 17),
    Sketcher.Constraint("Horizontal", 34),
    Sketcher.Constraint("DistanceX", 17, 2, 17, 1, Q("4.712062 mm")),
    Sketcher.Constraint("DistanceX", 34, 2, 34, 1, Q("4.712062 mm")),
    Sketcher.Constraint("DistanceY", 1, 2, 8, 2, Q("0.2866 mm")),
    Sketcher.Constraint("Distance", 8, Q("2.882573 mm")),
])
pocket5 = doc.addObject("PartDesign::Pocket", "Pocket004")
body.addObject(pocket5)
pocket5.Profile = sketch8
pocket5.Length = 0.3
pocket5.Reversed = True
doc.recompute()

chamfer2 = doc.addObject("PartDesign::Chamfer", "Chamfer001")
body.addObject(chamfer2)
chamfer2.Base = (pocket5, edges_at(pocket5, [
    (4.4, 7.5, 10.5),
    (4.4, -7.5, 10.5),
    (10.6, 7.5, 10.5),
    (10.6, -7.5, 10.5),
]))
chamfer2.Size = 2

doc.recompute()
